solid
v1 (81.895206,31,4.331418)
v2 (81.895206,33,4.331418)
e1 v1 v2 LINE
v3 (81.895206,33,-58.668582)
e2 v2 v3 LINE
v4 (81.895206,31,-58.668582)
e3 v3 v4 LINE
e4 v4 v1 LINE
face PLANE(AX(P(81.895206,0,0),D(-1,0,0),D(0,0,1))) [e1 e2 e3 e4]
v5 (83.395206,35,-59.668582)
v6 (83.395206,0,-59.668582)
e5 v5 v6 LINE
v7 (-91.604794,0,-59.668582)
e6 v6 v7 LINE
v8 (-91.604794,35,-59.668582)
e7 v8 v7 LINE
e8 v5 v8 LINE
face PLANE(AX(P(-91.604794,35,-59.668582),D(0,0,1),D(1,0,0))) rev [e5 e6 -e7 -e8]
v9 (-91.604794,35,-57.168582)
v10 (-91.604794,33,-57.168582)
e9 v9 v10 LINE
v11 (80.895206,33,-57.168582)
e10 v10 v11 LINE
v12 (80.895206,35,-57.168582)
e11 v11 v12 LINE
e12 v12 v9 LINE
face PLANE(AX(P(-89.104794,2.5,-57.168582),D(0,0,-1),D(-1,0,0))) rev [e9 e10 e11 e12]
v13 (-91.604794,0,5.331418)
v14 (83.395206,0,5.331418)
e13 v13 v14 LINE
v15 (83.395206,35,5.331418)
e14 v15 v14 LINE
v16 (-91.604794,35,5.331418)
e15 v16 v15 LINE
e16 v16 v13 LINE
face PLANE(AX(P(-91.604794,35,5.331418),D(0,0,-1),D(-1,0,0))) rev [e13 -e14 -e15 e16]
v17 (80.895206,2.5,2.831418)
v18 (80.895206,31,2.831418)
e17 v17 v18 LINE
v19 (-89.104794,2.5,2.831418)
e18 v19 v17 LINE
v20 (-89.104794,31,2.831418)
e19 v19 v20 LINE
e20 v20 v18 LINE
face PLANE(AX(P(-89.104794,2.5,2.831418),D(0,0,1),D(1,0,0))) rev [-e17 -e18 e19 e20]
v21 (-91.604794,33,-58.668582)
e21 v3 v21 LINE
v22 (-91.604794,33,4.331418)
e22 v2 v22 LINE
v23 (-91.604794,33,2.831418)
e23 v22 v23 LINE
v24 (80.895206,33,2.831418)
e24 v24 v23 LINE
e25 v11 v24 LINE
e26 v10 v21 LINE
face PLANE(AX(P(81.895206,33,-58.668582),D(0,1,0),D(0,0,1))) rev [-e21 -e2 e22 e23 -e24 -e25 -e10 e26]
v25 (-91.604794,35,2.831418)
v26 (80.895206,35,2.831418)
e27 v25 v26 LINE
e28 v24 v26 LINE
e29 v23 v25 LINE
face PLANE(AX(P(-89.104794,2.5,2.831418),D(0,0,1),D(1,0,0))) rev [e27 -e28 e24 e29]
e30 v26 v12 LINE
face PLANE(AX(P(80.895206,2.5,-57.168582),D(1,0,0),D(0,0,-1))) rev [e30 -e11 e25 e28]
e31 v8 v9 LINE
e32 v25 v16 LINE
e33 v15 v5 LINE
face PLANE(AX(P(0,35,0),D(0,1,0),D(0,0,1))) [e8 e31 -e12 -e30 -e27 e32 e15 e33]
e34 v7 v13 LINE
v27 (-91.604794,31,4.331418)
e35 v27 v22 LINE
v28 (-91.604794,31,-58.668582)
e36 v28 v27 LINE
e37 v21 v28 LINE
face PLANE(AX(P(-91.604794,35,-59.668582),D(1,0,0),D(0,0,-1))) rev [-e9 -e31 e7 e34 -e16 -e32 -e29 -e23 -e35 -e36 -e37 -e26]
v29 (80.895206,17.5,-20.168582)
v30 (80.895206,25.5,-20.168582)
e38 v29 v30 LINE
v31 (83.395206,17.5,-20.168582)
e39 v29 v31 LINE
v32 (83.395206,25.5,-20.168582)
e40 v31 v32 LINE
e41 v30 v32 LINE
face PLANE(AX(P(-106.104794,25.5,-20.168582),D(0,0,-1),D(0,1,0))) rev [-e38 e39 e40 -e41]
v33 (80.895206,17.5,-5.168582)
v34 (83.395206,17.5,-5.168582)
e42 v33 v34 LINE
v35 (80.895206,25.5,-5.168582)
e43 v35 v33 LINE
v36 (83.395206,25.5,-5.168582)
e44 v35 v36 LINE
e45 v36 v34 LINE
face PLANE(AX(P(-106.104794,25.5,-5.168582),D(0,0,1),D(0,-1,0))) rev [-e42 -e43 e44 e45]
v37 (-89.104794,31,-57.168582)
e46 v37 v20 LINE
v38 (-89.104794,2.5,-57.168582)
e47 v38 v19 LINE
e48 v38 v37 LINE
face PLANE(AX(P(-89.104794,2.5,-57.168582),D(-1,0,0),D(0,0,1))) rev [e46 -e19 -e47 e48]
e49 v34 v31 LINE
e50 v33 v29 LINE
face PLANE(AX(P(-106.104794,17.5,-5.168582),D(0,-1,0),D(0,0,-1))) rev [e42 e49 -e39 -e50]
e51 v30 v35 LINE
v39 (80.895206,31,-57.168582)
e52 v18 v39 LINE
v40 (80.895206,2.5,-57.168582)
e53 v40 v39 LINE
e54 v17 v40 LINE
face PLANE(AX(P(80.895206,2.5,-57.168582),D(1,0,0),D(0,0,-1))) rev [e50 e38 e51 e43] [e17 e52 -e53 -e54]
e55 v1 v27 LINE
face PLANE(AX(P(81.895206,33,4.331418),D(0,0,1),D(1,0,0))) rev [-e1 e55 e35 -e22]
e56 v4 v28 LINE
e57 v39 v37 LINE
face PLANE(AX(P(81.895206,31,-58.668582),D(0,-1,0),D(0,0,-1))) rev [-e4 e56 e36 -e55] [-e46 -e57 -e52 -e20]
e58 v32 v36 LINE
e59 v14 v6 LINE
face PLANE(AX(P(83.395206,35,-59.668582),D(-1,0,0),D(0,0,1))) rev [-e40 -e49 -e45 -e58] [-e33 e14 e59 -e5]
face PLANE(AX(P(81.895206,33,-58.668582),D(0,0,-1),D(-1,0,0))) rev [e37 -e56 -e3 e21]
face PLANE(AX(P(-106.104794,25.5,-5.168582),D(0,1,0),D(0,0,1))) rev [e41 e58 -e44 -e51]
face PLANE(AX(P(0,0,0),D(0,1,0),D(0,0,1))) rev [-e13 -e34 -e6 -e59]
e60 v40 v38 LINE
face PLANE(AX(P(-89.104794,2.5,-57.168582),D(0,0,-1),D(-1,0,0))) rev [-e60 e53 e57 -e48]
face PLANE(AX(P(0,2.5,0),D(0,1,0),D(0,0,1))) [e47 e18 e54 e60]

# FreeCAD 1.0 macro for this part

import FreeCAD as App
import Part
import Sketcher
from FreeCAD import Vector


def add_polygon(sketch, points):
    """Adds a closed chain of lines whose ends are joined by coincident constraints."""
    first, n = sketch.GeometryCount, len(points)
    for a, b in zip(points, points[1:] + points[:1]):
        sketch.addGeometry(Part.LineSegment(App.Vector(*a, 0), App.Vector(*b, 0)), False)
    for i in range(n):
        sketch.addConstraint(Sketcher.Constraint("Coincident", first + i, 2, first + (i + 1) % n, 1))

doc = App.newDocument("Part")
body = doc.addObject("PartDesign::Body", "Body")

sketch1 = body.newObject("Sketcher::SketchObject", "Sketch")
sketch1.AttachmentSupport = (doc.getObject("XZ_Plane"), [""])
sketch1.MapMode = "FlatFace"
add_polygon(sketch1, [(-92, -60), (-92, 5), (83, 5), (83, -60)])
sketch1.addConstraint([
    Sketcher.Constraint("Vertical", 0),
    Sketcher.Constraint("Horizontal", 1),
    Sketcher.Constraint("Vertical", 2),
    Sketcher.Constraint("Horizontal", 3),
    Sketcher.Constraint("DistanceX", 1, 1, 1, 2, 175.0),
    Sketcher.Constraint("DistanceY", 0, 1, 0, 2, 65.0),
    Sketcher.Constraint("DistanceX", 0, 2, -1, 1, 91.604794),
    Sketcher.Constraint("DistanceY", -1, 1, 0, 2, 5.331418),
])
pad1 = body.newObject("PartDesign::Pad", "Pad")
pad1.Profile = sketch1
pad1.Length = 35
pad1.Reversed = True

sketch2 = body.newObject("Sketcher::SketchObject", "Sketch001")
sketch2.AttachmentSupport = (doc.getObject("XZ_Plane"), [""])
sketch2.MapMode = "FlatFace"
sketch2.AttachmentOffset = App.Placement(Vector(0, 0, -35), App.Rotation())
add_polygon(sketch2, [(-89, -57), (-89, 3), (81, 3), (81, -57)])
sketch2.addConstraint([
    Sketcher.Constraint("Vertical", 0),
    Sketcher.Constraint("Horizontal", 1),
    Sketcher.Constraint("Vertical", 2),
    Sketcher.Constraint("Horizontal", 3),
    Sketcher.Constraint("DistanceX", 1, 1, 1, 2, 170.0),
    Sketcher.Constraint("DistanceY", 0, 1, 0, 2, 60.0),
    Sketcher.Constraint("DistanceX", 0, 2, -1, 1, 89.104794),
    Sketcher.Constraint("DistanceY", -1, 1, 0, 2, 2.831418),
])
pocket1 = body.newObject("PartDesign::Pocket", "Pocket")
pocket1.Profile = sketch2
pocket1.Length = 32.5
pocket1.Reversed = True

sketch3 = body.newObject("Sketcher::SketchObject", "Sketch002")
sketch3.AttachmentSupport = (doc.getObject("YZ_Plane"), [""])
sketch3.MapMode = "FlatFace"
sketch3.AttachmentOffset = App.Placement(Vector(0, 0, 83.395206), App.Rotation())
add_polygon(sketch3, [(26, -5), (18, -5), (18, -20), (26, -20)])
sketch3.addConstraint([
    Sketcher.Constraint("Horizontal", 0),
    Sketcher.Constraint("Vertical", 1),
    Sketcher.Constraint("Horizontal", 2),
    Sketcher.Constraint("Vertical", 3),
    Sketcher.Constraint("DistanceX", 0, 2, 0, 1, 8.0),
    Sketcher.Constraint("DistanceY", 1, 2, 1, 1, 15.0),
    Sketcher.Constraint("DistanceX", -1, 1, 0, 2, 17.5),
    Sketcher.Constraint("DistanceY", 0, 2, -1, 1, 5.168582),
])
pocket2 = body.newObject("PartDesign::Pocket", "Pocket001")
pocket2.Profile = sketch3
pocket2.Length = 172.5

sketch4 = body.newObject("Sketcher::SketchObject", "Sketch003")
sketch4.AttachmentSupport = (doc.getObject("YZ_Plane"), [""])
sketch4.MapMode = "FlatFace"
sketch4.AttachmentOffset = App.Placement(Vector(0, 0, -91.604794), App.Rotation())
add_polygon(sketch4, [(33, -58.7), (31, -58.7), (31, 4.3), (33, 4.3)])
sketch4.addConstraint([
    Sketcher.Constraint("Horizontal", 0),
    Sketcher.Constraint("Vertical", 1),
    Sketcher.Constraint("Horizontal", 2),
    Sketcher.Constraint("Vertical", 3),
    Sketcher.Constraint("DistanceX", 0, 2, 0, 1, 2.0),
    Sketcher.Constraint("DistanceY", 1, 1, 1, 2, 63.0),
    Sketcher.Constraint("DistanceX", -1, 1, 0, 2, 31.0),
    Sketcher.Constraint("DistanceY", 0, 2, -1, 1, 58.668582),
])
pocket3 = body.newObject("PartDesign::Pocket", "Pocket002")
pocket3.Profile = sketch4
pocket3.Length = 173.5
pocket3.Reversed = True

sketch5 = body.newObject("Sketcher::SketchObject", "Sketch004")
sketch5.AttachmentSupport = (doc.getObject("YZ_Plane"), [""])
sketch5.MapMode = "FlatFace"
sketch5.AttachmentOffset = App.Placement(Vector(0, 0, -91.604794), App.Rotation())
add_polygon(sketch5, [(35, -57.2), (33, -57.2), (33, 2.8), (35, 2.8)])
sketch5.addConstraint([
    Sketcher.Constraint("Horizontal", 0),
    Sketcher.Constraint("Vertical", 1),
    Sketcher.Constraint("Horizontal", 2),
    Sketcher.Constraint("Vertical", 3),
    Sketcher.Constraint("DistanceX", 0, 2, 0, 1, 2.0),
    Sketcher.Constraint("DistanceY", 1, 1, 1, 2, 60.0),
    Sketcher.Constraint("DistanceX", -1, 1, 0, 2, 33.0),
    Sketcher.Constraint("DistanceY", 0, 2, -1, 1, 57.168582),
])
pocket4 = body.newObject("PartDesign::Pocket", "Pocket003")
pocket4.Profile = sketch5
pocket4.Length = 2.5
pocket4.Reversed = True

doc.recompute()
